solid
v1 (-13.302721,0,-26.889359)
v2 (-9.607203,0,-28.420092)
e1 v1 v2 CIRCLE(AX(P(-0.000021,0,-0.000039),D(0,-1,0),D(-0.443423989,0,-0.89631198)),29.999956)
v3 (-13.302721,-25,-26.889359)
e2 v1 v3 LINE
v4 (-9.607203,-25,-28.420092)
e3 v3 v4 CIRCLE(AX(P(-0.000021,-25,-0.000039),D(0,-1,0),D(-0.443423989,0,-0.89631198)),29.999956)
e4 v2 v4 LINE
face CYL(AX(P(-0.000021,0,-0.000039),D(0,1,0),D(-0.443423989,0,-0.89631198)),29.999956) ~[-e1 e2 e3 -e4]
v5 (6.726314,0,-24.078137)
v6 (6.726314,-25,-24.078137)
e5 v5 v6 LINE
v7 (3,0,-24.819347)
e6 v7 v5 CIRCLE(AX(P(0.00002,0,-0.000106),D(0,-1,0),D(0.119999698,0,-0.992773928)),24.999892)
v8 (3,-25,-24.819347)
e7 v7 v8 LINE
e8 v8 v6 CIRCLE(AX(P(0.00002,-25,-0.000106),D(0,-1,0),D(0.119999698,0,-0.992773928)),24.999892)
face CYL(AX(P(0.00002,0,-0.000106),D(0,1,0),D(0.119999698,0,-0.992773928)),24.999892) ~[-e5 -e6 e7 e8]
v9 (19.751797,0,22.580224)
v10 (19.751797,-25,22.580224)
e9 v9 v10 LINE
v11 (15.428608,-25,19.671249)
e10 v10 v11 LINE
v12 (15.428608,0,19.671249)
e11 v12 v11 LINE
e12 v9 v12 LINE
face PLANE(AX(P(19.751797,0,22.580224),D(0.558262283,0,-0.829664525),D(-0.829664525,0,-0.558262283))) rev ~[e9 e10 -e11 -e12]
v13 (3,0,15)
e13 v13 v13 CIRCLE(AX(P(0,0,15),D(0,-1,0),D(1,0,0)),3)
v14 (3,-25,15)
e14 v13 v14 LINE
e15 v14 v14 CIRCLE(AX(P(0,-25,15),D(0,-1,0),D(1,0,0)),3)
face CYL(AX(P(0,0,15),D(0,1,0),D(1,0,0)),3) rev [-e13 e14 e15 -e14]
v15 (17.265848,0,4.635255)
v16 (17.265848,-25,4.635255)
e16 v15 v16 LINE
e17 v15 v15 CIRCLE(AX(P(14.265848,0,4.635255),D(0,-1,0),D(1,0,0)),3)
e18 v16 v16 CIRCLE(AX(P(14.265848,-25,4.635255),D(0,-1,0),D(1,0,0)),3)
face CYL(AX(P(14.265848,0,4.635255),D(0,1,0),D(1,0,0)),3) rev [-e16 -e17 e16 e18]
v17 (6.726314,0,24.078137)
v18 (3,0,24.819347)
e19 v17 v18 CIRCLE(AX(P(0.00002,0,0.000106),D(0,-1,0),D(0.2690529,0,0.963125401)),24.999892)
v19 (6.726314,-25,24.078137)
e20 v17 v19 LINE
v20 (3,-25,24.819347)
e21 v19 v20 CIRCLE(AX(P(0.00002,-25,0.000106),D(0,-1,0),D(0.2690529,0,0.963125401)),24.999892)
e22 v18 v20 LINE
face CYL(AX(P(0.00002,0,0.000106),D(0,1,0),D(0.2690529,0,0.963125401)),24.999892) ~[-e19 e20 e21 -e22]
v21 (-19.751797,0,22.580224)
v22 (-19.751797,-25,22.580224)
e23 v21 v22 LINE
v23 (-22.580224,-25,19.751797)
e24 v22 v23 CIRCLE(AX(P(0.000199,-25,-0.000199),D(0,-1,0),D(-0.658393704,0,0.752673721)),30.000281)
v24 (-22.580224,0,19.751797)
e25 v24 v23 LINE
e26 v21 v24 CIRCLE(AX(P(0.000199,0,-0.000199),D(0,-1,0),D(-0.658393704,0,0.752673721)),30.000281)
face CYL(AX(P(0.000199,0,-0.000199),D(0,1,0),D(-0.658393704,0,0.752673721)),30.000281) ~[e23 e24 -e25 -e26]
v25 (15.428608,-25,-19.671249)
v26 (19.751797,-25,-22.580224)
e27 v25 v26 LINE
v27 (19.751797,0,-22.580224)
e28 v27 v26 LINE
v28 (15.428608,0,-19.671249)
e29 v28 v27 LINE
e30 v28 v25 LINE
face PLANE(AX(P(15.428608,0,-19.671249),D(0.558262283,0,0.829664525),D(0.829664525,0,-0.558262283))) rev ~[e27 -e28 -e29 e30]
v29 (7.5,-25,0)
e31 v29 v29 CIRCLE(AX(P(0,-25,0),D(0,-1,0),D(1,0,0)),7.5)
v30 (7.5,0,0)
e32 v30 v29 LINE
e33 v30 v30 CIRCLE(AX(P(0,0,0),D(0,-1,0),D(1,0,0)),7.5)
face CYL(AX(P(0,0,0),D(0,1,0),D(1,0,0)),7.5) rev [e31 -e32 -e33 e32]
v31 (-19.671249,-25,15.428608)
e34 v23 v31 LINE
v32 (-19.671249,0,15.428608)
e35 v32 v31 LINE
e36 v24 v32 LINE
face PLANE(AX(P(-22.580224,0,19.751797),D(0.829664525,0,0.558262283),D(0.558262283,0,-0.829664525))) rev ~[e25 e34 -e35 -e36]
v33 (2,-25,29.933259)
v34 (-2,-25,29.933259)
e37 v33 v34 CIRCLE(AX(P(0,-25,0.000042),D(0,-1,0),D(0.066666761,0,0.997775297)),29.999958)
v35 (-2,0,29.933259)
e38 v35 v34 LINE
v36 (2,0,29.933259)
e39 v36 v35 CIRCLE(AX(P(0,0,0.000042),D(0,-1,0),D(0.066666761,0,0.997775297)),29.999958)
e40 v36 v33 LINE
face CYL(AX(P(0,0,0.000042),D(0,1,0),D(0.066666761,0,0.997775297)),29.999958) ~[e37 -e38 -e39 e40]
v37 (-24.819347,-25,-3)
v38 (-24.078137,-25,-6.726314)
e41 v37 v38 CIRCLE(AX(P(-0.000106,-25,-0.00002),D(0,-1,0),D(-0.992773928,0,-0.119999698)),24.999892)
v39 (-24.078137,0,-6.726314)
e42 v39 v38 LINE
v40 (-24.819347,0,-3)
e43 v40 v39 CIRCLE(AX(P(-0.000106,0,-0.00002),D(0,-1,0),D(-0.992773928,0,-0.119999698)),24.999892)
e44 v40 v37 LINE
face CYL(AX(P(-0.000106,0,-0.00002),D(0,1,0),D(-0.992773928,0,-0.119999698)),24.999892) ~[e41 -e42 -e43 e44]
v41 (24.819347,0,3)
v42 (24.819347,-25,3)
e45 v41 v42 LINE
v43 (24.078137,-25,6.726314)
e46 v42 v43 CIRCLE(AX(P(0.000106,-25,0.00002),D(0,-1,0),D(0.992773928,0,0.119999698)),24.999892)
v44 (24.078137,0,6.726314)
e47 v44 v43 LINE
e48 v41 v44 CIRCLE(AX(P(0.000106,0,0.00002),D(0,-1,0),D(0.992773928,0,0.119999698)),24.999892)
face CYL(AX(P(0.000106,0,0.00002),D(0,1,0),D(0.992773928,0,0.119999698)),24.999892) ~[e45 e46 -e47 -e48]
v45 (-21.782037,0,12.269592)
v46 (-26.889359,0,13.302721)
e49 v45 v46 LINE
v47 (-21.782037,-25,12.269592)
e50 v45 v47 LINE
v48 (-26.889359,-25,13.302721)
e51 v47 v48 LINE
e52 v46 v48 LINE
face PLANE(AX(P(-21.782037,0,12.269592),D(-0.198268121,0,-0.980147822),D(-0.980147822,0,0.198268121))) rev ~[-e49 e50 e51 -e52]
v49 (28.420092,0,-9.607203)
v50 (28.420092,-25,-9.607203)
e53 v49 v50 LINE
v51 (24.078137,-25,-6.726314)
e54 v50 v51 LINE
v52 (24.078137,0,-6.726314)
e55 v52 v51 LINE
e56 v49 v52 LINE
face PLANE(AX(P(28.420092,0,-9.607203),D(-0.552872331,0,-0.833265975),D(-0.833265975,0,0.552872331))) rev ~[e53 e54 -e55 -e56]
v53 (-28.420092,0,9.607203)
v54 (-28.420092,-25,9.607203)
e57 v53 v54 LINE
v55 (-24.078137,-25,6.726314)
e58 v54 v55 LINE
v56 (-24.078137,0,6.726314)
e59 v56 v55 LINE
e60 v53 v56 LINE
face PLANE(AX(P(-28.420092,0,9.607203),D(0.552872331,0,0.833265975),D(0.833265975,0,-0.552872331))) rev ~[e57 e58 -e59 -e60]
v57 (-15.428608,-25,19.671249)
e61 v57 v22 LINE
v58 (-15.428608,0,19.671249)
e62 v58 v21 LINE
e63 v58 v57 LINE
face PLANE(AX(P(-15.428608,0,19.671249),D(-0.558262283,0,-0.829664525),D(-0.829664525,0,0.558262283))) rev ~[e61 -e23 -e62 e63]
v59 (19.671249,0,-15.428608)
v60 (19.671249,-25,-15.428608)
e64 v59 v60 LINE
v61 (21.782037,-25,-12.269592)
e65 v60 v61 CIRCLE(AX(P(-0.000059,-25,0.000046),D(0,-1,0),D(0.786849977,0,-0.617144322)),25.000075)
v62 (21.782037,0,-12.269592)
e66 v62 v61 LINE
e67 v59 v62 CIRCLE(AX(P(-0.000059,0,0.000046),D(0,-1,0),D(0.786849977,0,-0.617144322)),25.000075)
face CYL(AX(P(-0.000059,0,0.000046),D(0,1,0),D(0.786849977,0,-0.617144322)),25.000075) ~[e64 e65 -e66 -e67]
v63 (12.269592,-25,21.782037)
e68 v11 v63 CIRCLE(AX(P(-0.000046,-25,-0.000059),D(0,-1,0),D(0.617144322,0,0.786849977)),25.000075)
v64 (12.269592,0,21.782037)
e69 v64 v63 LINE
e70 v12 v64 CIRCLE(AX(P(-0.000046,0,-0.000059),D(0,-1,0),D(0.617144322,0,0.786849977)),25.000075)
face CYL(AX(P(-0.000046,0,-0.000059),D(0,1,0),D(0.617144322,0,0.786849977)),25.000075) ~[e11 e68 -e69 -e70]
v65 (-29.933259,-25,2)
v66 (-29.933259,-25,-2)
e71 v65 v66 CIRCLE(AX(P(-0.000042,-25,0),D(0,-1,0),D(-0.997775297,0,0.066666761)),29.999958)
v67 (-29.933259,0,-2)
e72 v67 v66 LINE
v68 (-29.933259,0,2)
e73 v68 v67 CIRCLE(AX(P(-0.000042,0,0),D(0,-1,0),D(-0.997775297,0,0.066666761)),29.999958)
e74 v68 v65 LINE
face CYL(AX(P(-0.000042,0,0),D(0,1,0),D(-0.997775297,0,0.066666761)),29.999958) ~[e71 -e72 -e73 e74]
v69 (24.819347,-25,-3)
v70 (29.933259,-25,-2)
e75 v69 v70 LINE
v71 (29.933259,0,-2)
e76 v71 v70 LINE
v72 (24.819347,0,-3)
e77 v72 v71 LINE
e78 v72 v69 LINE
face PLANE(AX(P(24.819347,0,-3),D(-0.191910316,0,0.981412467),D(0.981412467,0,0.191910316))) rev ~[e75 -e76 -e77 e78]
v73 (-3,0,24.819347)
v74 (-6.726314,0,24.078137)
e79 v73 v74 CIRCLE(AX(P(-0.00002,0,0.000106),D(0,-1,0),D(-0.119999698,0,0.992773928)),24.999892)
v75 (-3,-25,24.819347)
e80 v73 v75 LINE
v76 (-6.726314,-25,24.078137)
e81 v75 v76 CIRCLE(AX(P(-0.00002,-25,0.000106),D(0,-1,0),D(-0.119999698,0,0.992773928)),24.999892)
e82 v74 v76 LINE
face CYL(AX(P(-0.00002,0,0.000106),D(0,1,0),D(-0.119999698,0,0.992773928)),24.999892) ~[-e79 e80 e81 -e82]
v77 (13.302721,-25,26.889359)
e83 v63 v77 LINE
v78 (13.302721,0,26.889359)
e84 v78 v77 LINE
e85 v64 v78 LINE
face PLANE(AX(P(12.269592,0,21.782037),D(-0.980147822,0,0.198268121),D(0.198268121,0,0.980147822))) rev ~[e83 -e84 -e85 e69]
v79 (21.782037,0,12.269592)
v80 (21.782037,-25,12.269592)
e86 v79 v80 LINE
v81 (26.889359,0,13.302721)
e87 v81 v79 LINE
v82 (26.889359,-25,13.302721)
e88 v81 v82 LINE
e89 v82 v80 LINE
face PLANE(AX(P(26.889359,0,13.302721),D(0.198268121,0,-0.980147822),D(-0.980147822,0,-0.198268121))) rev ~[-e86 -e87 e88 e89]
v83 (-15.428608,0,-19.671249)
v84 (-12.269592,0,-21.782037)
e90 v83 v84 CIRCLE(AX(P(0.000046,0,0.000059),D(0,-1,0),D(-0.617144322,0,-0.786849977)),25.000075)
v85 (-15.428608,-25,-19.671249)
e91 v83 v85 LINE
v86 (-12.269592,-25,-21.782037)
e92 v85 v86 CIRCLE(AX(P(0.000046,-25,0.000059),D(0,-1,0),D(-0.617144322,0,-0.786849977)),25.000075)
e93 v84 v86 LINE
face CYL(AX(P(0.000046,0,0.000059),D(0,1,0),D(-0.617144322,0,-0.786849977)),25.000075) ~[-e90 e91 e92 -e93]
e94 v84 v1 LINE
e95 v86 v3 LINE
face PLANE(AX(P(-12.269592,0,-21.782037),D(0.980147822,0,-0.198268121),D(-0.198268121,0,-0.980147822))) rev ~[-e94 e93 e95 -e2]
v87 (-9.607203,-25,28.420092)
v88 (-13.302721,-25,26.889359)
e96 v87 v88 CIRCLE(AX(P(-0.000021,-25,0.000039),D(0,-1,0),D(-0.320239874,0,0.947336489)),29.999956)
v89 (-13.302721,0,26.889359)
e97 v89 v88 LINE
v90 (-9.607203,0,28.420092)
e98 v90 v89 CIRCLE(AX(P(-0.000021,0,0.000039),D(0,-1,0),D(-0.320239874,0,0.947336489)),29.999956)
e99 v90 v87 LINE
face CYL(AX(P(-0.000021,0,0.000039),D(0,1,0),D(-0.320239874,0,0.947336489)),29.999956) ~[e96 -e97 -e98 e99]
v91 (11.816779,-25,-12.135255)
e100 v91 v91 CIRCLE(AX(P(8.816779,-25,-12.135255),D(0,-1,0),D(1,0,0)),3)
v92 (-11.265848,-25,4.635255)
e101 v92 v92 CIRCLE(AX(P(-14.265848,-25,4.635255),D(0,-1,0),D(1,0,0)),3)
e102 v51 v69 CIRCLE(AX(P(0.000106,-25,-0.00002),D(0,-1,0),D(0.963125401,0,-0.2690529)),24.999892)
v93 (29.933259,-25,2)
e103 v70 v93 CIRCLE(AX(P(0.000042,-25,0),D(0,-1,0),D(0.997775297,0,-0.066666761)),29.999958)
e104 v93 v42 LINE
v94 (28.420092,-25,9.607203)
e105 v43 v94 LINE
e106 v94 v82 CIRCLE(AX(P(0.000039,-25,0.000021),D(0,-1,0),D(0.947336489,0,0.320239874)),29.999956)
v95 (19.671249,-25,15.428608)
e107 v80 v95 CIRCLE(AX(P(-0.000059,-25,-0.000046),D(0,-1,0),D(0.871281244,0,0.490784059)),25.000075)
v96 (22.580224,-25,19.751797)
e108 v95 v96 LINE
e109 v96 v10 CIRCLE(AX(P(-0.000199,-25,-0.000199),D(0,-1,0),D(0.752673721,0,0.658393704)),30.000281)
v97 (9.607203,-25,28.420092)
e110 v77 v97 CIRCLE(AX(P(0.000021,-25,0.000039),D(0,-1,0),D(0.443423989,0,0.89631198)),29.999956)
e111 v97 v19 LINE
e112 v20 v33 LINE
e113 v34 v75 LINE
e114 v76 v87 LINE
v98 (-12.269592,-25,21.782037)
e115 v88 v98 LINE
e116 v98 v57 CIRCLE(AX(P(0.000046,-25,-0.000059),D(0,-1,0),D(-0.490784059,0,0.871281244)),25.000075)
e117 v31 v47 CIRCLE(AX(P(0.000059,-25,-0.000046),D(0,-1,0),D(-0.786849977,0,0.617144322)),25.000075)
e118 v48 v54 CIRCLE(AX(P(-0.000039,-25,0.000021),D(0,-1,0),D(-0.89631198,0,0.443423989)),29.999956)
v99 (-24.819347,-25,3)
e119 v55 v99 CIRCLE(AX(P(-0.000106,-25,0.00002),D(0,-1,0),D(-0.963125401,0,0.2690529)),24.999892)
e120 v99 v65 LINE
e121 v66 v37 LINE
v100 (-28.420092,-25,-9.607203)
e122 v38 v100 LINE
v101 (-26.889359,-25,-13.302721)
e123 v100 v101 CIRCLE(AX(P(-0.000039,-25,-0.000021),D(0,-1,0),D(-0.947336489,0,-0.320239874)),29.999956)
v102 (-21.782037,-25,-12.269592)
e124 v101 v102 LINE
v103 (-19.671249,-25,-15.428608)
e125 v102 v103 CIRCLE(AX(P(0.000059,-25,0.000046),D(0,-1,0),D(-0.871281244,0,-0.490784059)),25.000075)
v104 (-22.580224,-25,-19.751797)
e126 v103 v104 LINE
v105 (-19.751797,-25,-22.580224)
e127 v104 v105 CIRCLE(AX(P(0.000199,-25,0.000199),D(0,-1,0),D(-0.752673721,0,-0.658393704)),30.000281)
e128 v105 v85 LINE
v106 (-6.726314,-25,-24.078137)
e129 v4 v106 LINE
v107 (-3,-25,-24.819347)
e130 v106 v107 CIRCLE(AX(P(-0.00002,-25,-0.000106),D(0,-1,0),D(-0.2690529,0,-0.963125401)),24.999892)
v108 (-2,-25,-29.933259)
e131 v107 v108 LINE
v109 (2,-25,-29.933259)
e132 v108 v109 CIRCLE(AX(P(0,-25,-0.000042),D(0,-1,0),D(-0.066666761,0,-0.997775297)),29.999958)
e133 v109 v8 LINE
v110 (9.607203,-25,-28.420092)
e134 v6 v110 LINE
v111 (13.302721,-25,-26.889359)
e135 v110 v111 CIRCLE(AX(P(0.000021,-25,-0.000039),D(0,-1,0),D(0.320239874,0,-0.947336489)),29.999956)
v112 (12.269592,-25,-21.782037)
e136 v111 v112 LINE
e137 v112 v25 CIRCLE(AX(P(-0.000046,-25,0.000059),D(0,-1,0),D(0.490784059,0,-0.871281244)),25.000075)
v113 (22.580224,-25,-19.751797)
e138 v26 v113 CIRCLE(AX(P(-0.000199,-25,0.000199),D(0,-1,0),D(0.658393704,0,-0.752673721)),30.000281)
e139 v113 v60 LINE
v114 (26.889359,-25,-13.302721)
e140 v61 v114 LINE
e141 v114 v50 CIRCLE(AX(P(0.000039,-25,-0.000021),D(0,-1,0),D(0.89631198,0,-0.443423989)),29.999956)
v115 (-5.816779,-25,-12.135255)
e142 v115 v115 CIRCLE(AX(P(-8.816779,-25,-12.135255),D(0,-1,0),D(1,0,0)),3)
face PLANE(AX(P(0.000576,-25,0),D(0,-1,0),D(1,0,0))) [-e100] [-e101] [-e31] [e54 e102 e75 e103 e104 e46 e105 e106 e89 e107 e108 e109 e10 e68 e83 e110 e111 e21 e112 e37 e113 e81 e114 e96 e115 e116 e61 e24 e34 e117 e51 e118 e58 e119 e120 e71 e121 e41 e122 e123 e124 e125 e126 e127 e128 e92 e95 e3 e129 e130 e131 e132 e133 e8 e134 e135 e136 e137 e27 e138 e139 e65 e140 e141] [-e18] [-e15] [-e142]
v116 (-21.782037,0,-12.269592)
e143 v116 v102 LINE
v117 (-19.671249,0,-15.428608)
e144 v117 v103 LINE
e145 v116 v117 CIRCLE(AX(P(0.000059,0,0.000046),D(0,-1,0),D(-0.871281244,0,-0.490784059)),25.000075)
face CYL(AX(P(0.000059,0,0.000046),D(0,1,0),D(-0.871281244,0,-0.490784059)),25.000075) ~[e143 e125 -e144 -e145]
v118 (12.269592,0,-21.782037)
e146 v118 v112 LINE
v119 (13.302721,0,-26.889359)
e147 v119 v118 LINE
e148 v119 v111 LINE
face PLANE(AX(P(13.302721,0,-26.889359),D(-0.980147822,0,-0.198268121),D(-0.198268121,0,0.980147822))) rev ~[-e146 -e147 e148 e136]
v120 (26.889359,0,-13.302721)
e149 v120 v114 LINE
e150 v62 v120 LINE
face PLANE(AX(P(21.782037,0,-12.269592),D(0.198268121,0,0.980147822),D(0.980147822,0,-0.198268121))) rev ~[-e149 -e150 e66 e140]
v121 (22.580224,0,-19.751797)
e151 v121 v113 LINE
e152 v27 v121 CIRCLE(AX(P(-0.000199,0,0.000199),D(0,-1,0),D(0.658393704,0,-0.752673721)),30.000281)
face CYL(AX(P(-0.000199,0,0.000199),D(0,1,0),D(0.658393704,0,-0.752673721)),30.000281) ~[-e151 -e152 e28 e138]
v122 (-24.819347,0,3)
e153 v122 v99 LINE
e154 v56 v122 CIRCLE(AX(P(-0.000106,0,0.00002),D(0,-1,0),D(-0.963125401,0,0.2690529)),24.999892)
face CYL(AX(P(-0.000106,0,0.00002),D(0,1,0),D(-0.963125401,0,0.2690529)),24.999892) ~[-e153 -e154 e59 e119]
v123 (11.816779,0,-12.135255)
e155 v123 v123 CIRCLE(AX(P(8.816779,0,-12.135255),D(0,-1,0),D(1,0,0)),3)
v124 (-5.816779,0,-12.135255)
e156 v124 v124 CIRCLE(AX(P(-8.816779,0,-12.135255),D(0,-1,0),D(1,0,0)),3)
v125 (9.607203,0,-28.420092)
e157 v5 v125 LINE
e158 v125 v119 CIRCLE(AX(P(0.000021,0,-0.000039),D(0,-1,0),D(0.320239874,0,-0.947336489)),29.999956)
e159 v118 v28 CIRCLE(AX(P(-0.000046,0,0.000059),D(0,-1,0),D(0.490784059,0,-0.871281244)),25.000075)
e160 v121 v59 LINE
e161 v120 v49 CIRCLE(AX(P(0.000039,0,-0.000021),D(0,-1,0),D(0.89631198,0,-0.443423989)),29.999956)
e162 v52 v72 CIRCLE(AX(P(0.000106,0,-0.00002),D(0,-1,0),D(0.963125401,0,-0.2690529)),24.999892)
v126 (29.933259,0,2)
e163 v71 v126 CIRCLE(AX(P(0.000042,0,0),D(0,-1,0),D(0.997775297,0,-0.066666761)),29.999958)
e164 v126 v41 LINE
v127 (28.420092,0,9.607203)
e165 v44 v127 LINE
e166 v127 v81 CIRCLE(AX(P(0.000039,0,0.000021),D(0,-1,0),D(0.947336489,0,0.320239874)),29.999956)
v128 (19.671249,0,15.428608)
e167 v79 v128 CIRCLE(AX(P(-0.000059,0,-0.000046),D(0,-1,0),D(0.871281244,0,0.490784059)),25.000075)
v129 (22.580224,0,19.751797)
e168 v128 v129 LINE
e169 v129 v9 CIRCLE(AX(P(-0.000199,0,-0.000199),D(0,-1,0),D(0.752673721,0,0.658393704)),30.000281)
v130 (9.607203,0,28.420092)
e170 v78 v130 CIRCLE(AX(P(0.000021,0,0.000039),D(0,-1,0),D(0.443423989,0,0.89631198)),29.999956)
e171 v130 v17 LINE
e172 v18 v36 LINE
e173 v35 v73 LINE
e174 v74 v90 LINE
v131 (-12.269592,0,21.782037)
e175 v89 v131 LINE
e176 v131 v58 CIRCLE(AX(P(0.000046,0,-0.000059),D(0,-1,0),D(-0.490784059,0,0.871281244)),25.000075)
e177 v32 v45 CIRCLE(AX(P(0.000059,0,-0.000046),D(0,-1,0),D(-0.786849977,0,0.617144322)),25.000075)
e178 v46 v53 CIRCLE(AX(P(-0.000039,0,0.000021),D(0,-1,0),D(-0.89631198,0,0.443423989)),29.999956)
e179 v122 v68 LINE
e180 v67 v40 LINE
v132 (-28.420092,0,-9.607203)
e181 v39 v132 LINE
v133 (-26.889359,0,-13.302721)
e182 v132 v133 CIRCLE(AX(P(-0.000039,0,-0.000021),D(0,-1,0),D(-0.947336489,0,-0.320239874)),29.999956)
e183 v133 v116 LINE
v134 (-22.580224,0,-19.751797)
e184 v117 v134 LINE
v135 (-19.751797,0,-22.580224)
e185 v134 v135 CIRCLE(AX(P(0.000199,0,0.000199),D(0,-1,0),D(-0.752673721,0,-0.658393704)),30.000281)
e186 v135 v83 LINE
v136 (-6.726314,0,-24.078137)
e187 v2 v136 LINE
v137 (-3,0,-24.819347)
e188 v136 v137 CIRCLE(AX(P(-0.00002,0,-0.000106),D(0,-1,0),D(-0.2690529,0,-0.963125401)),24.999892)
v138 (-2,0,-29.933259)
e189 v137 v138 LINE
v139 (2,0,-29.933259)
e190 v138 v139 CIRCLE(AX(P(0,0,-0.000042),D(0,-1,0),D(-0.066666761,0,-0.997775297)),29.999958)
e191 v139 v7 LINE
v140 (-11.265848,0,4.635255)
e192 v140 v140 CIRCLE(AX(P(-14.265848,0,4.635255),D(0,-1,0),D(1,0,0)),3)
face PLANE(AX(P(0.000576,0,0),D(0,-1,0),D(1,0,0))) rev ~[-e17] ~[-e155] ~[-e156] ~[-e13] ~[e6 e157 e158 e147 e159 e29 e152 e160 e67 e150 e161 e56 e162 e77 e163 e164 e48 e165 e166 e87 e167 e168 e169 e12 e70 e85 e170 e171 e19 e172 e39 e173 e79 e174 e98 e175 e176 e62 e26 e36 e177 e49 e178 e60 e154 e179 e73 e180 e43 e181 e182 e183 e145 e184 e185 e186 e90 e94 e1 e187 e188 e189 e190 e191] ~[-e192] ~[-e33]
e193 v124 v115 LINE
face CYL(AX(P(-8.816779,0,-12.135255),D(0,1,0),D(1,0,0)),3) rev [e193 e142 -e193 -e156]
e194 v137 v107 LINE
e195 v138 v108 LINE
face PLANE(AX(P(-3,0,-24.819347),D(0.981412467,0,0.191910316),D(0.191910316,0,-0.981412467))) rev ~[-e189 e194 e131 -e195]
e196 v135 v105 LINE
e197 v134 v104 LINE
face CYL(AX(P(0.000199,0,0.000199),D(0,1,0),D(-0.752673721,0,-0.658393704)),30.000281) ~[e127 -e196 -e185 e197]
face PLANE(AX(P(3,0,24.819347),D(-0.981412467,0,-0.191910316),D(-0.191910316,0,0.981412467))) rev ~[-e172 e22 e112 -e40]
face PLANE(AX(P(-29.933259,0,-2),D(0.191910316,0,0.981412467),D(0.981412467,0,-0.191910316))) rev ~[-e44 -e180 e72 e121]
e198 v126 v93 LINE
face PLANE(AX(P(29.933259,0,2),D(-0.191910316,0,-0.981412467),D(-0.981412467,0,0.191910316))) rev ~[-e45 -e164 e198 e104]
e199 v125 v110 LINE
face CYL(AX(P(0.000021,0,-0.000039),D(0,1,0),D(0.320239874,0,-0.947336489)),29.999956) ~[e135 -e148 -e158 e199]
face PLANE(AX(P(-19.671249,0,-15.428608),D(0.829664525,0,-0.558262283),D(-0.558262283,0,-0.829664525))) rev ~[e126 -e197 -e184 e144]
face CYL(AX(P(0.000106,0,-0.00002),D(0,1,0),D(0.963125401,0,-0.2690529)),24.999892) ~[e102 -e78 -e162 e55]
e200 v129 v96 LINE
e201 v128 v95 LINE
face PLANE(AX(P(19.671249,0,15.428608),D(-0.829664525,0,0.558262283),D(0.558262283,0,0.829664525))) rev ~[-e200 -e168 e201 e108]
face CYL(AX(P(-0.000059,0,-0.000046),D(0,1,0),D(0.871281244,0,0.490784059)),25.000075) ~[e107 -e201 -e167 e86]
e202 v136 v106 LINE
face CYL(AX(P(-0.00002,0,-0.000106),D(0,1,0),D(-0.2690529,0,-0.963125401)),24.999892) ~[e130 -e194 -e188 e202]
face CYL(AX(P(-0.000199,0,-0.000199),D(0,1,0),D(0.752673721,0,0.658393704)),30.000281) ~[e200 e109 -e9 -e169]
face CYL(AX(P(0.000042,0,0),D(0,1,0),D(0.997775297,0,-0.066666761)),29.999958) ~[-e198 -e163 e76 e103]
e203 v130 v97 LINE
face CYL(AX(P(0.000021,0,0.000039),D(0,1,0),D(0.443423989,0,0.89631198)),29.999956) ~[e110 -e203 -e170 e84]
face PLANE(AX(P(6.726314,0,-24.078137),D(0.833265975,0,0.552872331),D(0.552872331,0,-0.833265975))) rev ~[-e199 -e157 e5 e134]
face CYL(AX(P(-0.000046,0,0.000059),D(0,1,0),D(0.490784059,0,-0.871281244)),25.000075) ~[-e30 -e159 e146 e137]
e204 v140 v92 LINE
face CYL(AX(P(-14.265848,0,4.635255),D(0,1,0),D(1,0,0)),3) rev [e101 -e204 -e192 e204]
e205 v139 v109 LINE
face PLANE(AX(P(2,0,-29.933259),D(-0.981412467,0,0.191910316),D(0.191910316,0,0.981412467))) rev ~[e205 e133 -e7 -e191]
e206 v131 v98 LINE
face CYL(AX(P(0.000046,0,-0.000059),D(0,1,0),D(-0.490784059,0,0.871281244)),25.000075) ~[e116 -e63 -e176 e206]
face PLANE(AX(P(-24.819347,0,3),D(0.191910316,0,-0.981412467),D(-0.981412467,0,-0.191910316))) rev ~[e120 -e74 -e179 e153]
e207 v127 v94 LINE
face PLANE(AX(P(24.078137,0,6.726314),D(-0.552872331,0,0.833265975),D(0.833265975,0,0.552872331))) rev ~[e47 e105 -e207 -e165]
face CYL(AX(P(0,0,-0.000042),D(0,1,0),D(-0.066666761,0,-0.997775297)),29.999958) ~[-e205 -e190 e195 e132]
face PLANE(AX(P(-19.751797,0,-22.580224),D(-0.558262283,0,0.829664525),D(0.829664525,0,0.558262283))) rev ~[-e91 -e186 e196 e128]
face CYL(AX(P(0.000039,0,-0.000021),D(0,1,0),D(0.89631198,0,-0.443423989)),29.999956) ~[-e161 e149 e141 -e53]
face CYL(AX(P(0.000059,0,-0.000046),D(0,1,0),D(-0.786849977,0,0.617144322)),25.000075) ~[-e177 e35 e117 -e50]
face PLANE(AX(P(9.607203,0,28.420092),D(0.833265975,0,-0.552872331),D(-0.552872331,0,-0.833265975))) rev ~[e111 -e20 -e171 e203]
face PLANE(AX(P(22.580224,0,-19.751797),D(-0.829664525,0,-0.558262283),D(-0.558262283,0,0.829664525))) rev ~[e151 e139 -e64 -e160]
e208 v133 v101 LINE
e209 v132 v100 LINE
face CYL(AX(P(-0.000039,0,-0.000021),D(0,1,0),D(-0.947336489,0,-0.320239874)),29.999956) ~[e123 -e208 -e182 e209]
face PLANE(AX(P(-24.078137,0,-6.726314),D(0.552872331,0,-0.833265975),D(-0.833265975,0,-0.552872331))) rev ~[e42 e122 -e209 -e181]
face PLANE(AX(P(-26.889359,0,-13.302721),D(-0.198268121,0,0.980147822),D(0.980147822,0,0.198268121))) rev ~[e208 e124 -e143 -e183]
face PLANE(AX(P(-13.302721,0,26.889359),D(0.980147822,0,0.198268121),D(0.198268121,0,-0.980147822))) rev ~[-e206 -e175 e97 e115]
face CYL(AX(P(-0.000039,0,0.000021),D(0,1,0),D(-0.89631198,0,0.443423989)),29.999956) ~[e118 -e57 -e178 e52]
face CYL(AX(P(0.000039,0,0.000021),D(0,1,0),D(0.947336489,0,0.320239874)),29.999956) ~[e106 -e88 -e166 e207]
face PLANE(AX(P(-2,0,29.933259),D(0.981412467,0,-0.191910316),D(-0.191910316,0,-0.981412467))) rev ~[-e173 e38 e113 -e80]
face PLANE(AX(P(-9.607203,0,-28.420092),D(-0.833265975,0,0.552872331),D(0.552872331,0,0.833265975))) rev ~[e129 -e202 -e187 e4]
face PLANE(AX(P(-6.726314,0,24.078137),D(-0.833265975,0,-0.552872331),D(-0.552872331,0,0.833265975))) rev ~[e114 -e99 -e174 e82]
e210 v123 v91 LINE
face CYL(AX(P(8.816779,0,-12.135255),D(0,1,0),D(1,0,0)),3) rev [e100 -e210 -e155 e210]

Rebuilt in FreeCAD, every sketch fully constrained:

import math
import FreeCAD as App
import Part
import Sketcher
from FreeCAD import Vector

doc = App.newDocument("Part")
body = doc.addObject("PartDesign::Body", "Body")

sketch1 = body.newObject("Sketcher::SketchObject", "Sketch")
sketch1.AttachmentSupport = (doc.getObject("XZ_Plane"), [""])
sketch1.MapMode = "FlatFace"
sketch1.addGeometry([
    Part.ArcOfCircle(Part.Circle(Vector(-0.000059, 0.000046, 0), Vector(0, 0, 1), 25.000075), math.radians(-38.107896), math.radians(-29.392129)),
    Part.LineSegment(Vector(21.782037, -12.269592, 0), Vector(26.889359, -13.302721, 0)),
    Part.ArcOfCircle(Part.Circle(Vector(0.000039, -0.000021, 0), Vector(0, 0, 1), 29.999956), math.radians(-26.32255), math.radians(-18.677432)),
    Part.LineSegment(Vector(28.420092, -9.607203, 0), Vector(24.078137, -6.726314, 0)),
    Part.ArcOfCircle(Part.Circle(Vector(0.000106, -0.00002, 0), Vector(0, 0, 1), 24.999892), math.radians(-15.607917), math.radians(-6.892085)),
    Part.LineSegment(Vector(24.819347, -3, 0), Vector(29.933259, -2, 0)),
    Part.ArcOfCircle(Part.Circle(Vector(0.000042, 0, 0), Vector(0, 0, 1), 29.999958), math.radians(-3.822559), math.radians(3.822559)),
    Part.LineSegment(Vector(29.933259, 2, 0), Vector(24.819347, 3, 0)),
    Part.ArcOfCircle(Part.Circle(Vector(0.000106, 0.00002, 0), Vector(0, 0, 1), 24.999892), math.radians(6.892085), math.radians(15.607917)),
    Part.LineSegment(Vector(24.078137, 6.726314, 0), Vector(28.420092, 9.607203, 0)),
    Part.ArcOfCircle(Part.Circle(Vector(0.000039, 0.000021, 0), Vector(0, 0, 1), 29.999956), math.radians(18.677432), math.radians(26.32255)),
    Part.LineSegment(Vector(26.889359, 13.302721, 0), Vector(21.782037, 12.269592, 0)),
    Part.ArcOfCircle(Part.Circle(Vector(-0.000059, -0.000046, 0), Vector(0, 0, 1), 25.000075), math.radians(29.392129), math.radians(38.107896)),
    Part.LineSegment(Vector(19.671249, 15.428608, 0), Vector(22.580224, 19.751797, 0)),
    Part.ArcOfCircle(Part.Circle(Vector(-0.000199, -0.000199, 0), Vector(0, 0, 1), 30.000281), math.radians(41.177482), math.radians(48.822518)),
    Part.LineSegment(Vector(19.751797, 22.580224, 0), Vector(15.428608, 19.671249, 0)),
    Part.ArcOfCircle(Part.Circle(Vector(-0.000046, -0.000059, 0), Vector(0, 0, 1), 25.000075), math.radians(51.892104), math.radians(60.607871)),
    Part.LineSegment(Vector(12.269592, 21.782037, 0), Vector(13.302721, 26.889359, 0)),
    Part.ArcOfCircle(Part.Circle(Vector(0.000021, 0.000039, 0), Vector(0, 0, 1), 29.999956), math.radians(63.67745), math.radians(71.322568)),
    Part.LineSegment(Vector(9.607203, 28.420092, 0), Vector(6.726314, 24.078137, 0)),
    Part.ArcOfCircle(Part.Circle(Vector(0.00002, 0.000106, 0), Vector(0, 0, 1), 24.999892), math.radians(74.392083), math.radians(83.107915)),
    Part.LineSegment(Vector(3, 24.819347, 0), Vector(2, 29.933259, 0)),
    Part.ArcOfCircle(Part.Circle(Vector(0, 0.000042, 0), Vector(0, 0, 1), 29.999958), math.radians(86.177441), math.radians(93.822559)),
    Part.LineSegment(Vector(-2, 29.933259, 0), Vector(-3, 24.819347, 0)),
    Part.ArcOfCircle(Part.Circle(Vector(-0.00002, 0.000106, 0), Vector(0, 0, 1), 24.999892), math.radians(96.892085), math.radians(105.607917)),
    Part.LineSegment(Vector(-6.726314, 24.078137, 0), Vector(-9.607203, 28.420092, 0)),
    Part.ArcOfCircle(Part.Circle(Vector(-0.000021, 0.000039, 0), Vector(0, 0, 1), 29.999956), math.radians(108.677432), math.radians(116.32255)),
    Part.LineSegment(Vector(-13.302721, 26.889359, 0), Vector(-12.269592, 21.782037, 0)),
    Part.ArcOfCircle(Part.Circle(Vector(0.000046, -0.000059, 0), Vector(0, 0, 1), 25.000075), math.radians(119.392129), math.radians(128.107896)),
    Part.LineSegment(Vector(-15.428608, 19.671249, 0), Vector(-19.751797, 22.580224, 0)),
    Part.ArcOfCircle(Part.Circle(Vector(0.000199, -0.000199, 0), Vector(0, 0, 1), 30.000281), math.radians(131.177482), math.radians(138.822518)),
    Part.LineSegment(Vector(-22.580224, 19.751797, 0), Vector(-19.671249, 15.428608, 0)),
    Part.ArcOfCircle(Part.Circle(Vector(0.000059, -0.000046, 0), Vector(0, 0, 1), 25.000075), math.radians(141.892104), math.radians(150.607871)),
    Part.LineSegment(Vector(-21.782037, 12.269592, 0), Vector(-26.889359, 13.302721, 0)),
    Part.ArcOfCircle(Part.Circle(Vector(-0.000039, 0.000021, 0), Vector(0, 0, 1), 29.999956), math.radians(153.67745), math.radians(161.322568)),
    Part.LineSegment(Vector(-28.420092, 9.607203, 0), Vector(-24.078137, 6.726314, 0)),
    Part.ArcOfCircle(Part.Circle(Vector(-0.000106, 0.00002, 0), Vector(0, 0, 1), 24.999892), math.radians(164.392083), math.radians(173.107915)),
    Part.LineSegment(Vector(-24.819347, 3, 0), Vector(-29.933259, 2, 0)),
    Part.ArcOfCircle(Part.Circle(Vector(-0.000042, 0, 0), Vector(0, 0, 1), 29.999958), math.radians(176.177441), math.radians(183.822559)),
    Part.LineSegment(Vector(-29.933259, -2, 0), Vector(-24.819347, -3, 0)),
    Part.ArcOfCircle(Part.Circle(Vector(-0.000106, -0.00002, 0), Vector(0, 0, 1), 24.999892), math.radians(-173.107915), math.radians(-164.392083)),
    Part.LineSegment(Vector(-24.078137, -6.726314, 0), Vector(-28.420092, -9.607203, 0)),
    Part.ArcOfCircle(Part.Circle(Vector(-0.000039, -0.000021, 0), Vector(0, 0, 1), 29.999956), math.radians(-161.322568), math.radians(-153.67745)),
    Part.LineSegment(Vector(-26.889359, -13.302721, 0), Vector(-21.782037, -12.269592, 0)),
    Part.ArcOfCircle(Part.Circle(Vector(0.000059, 0.000046, 0), Vector(0, 0, 1), 25.000075), math.radians(-150.607871), math.radians(-141.892104)),
    Part.LineSegment(Vector(-19.671249, -15.428608, 0), Vector(-22.580224, -19.751797, 0)),
    Part.ArcOfCircle(Part.Circle(Vector(0.000199, 0.000199, 0), Vector(0, 0, 1), 30.000281), math.radians(-138.822518), math.radians(-131.177482)),
    Part.LineSegment(Vector(-19.751797, -22.580224, 0), Vector(-15.428608, -19.671249, 0)),
    Part.ArcOfCircle(Part.Circle(Vector(0.000046, 0.000059, 0), Vector(0, 0, 1), 25.000075), math.radians(-128.107896), math.radians(-119.392129)),
    Part.LineSegment(Vector(-12.269592, -21.782037, 0), Vector(-13.302721, -26.889359, 0)),
    Part.ArcOfCircle(Part.Circle(Vector(-0.000021, -0.000039, 0), Vector(0, 0, 1), 29.999956), math.radians(-116.32255), math.radians(-108.677432)),
    Part.LineSegment(Vector(-9.607203, -28.420092, 0), Vector(-6.726314, -24.078137, 0)),
    Part.ArcOfCircle(Part.Circle(Vector(-0.00002, -0.000106, 0), Vector(0, 0, 1), 24.999892), math.radians(-105.607917), math.radians(-96.892085)),
    Part.LineSegment(Vector(-3, -24.819347, 0), Vector(-2, -29.933259, 0)),
    Part.ArcOfCircle(Part.Circle(Vector(0, -0.000042, 0), Vector(0, 0, 1), 29.999958), math.radians(-93.822559), math.radians(-86.177441)),
    Part.LineSegment(Vector(2, -29.933259, 0), Vector(3, -24.819347, 0)),
    Part.ArcOfCircle(Part.Circle(Vector(0.00002, -0.000106, 0), Vector(0, 0, 1), 24.999892), math.radians(-83.107915), math.radians(-74.392083)),
    Part.LineSegment(Vector(6.726314, -24.078137, 0), Vector(9.607203, -28.420092, 0)),
    Part.ArcOfCircle(Part.Circle(Vector(0.000021, -0.000039, 0), Vector(0, 0, 1), 29.999956), math.radians(-71.322568), math.radians(-63.67745)),
    Part.LineSegment(Vector(13.302721, -26.889359, 0), Vector(12.269592, -21.782037, 0)),
    Part.ArcOfCircle(Part.Circle(Vector(-0.000046, 0.000059, 0), Vector(0, 0, 1), 25.000075), math.radians(-60.607871), math.radians(-51.892104)),
    Part.LineSegment(Vector(15.428608, -19.671249, 0), Vector(19.751797, -22.580224, 0)),
    Part.ArcOfCircle(Part.Circle(Vector(-0.000199, 0.000199, 0), Vector(0, 0, 1), 30.000281), math.radians(-48.822518), math.radians(-41.177482)),
    Part.LineSegment(Vector(22.580224, -19.751797, 0), Vector(19.671249, -15.428608, 0)),
    Part.Circle(Vector(-8.816779, -12.135255, 0), Vector(0, 0, 1), 3),
    Part.Circle(Vector(0, 0, 0), Vector(0, 0, 1), 7.5),
    Part.Circle(Vector(8.816779, -12.135255, 0), Vector(0, 0, 1), 3),
    Part.Circle(Vector(-14.265848, 4.635255, 0), Vector(0, 0, 1), 3),
    Part.Circle(Vector(0, 15, 0), Vector(0, 0, 1), 3),
    Part.Circle(Vector(14.265848, 4.635255, 0), Vector(0, 0, 1), 3),
], False)
sketch1.addConstraint([
    Sketcher.Constraint("Coincident", 0, 2, 1, 1),
    Sketcher.Constraint("Coincident", 1, 2, 2, 1),
    Sketcher.Constraint("Coincident", 2, 2, 3, 1),
    Sketcher.Constraint("Coincident", 3, 2, 4, 1),
    Sketcher.Constraint("Coincident", 4, 2, 5, 1),
    Sketcher.Constraint("Coincident", 5, 2, 6, 1),
    Sketcher.Constraint("Coincident", 6, 2, 7, 1),
    Sketcher.Constraint("Coincident", 7, 2, 8, 1),
    Sketcher.Constraint("Coincident", 8, 2, 9, 1),
    Sketcher.Constraint("Coincident", 9, 2, 10, 1),
    Sketcher.Constraint("Coincident", 10, 2, 11, 1),
    Sketcher.Constraint("Coincident", 11, 2, 12, 1),
    Sketcher.Constraint("Coincident", 12, 2, 13, 1),
    Sketcher.Constraint("Coincident", 13, 2, 14, 1),
    Sketcher.Constraint("Coincident", 14, 2, 15, 1),
    Sketcher.Constraint("Coincident", 15, 2, 16, 1),
    Sketcher.Constraint("Coincident", 16, 2, 17, 1),
    Sketcher.Constraint("Coincident", 17, 2, 18, 1),
    Sketcher.Constraint("Coincident", 18, 2, 19, 1),
    Sketcher.Constraint("Coincident", 19, 2, 20, 1),
    Sketcher.Constraint("Coincident", 20, 2, 21, 1),
    Sketcher.Constraint("Coincident", 21, 2, 22, 1),
    Sketcher.Constraint("Coincident", 22, 2, 23, 1),
    Sketcher.Constraint("Coincident", 23, 2, 24, 1),
    Sketcher.Constraint("Coincident", 24, 2, 25, 1),
    Sketcher.Constraint("Coincident", 25, 2, 26, 1),
    Sketcher.Constraint("Coincident", 26, 2, 27, 1),
    Sketcher.Constraint("Coincident", 27, 2, 28, 1),
    Sketcher.Constraint("Coincident", 28, 2, 29, 1),
    Sketcher.Constraint("Coincident", 29, 2, 30, 1),
    Sketcher.Constraint("Coincident", 30, 2, 31, 1),
    Sketcher.Constraint("Coincident", 31, 2, 32, 1),
    Sketcher.Constraint("Coincident", 32, 2, 33, 1),
    Sketcher.Constraint("Coincident", 33, 2, 34, 1),
    Sketcher.Constraint("Coincident", 34, 2, 35, 1),
    Sketcher.Constraint("Coincident", 35, 2, 36, 1),
    Sketcher.Constraint("Coincident", 36, 2, 37, 1),
    Sketcher.Constraint("Coincident", 37, 2, 38, 1),
    Sketcher.Constraint("Coincident", 38, 2, 39, 1),
    Sketcher.Constraint("Coincident", 39, 2, 40, 1),
    Sketcher.Constraint("Coincident", 40, 2, 41, 1),
    Sketcher.Constraint("Coincident", 41, 2, 42, 1),
    Sketcher.Constraint("Coincident", 42, 2, 43, 1),
    Sketcher.Constraint("Coincident", 43, 2, 44, 1),
    Sketcher.Constraint("Coincident", 44, 2, 45, 1),
    Sketcher.Constraint("Coincident", 45, 2, 46, 1),
    Sketcher.Constraint("Coincident", 46, 2, 47, 1),
    Sketcher.Constraint("Coincident", 47, 2, 48, 1),
    Sketcher.Constraint("Coincident", 48, 2, 49, 1),
    Sketcher.Constraint("Coincident", 49, 2, 50, 1),
    Sketcher.Constraint("Coincident", 50, 2, 51, 1),
    Sketcher.Constraint("Coincident", 51, 2, 52, 1),
    Sketcher.Constraint("Coincident", 52, 2, 53, 1),
    Sketcher.Constraint("Coincident", 53, 2, 54, 1),
    Sketcher.Constraint("Coincident", 54, 2, 55, 1),
    Sketcher.Constraint("Coincident", 55, 2, 56, 1),
    Sketcher.Constraint("Coincident", 56, 2, 57, 1),
    Sketcher.Constraint("Coincident", 57, 2, 58, 1),
    Sketcher.Constraint("Coincident", 58, 2, 59, 1),
    Sketcher.Constraint("Coincident", 59, 2, 60, 1),
    Sketcher.Constraint("Coincident", 60, 2, 61, 1),
    Sketcher.Constraint("Coincident", 61, 2, 62, 1),
    Sketcher.Constraint("Coincident", 62, 2, 63, 1),
    Sketcher.Constraint("Coincident", 63, 2, 0, 1),
    Sketcher.Constraint("Coincident", 65, 3, -1, 1),
    Sketcher.Constraint("Equal", 4, 8),
    Sketcher.Constraint("Equal", 2, 10),
    Sketcher.Constraint("Equal", 0, 12),
    Sketcher.Constraint("Equal", 12, 16),
    Sketcher.Constraint("Equal", 10, 18),
    Sketcher.Constraint("Equal", 8, 20),
    Sketcher.Constraint("Equal", 6, 22),
    Sketcher.Constraint("Equal", 20, 24),
    Sketcher.Constraint("Equal", 18, 26),
    Sketcher.Constraint("Equal", 16, 28),
    Sketcher.Constraint("Equal", 14, 30),
    Sketcher.Constraint("Equal", 28, 32),
    Sketcher.Constraint("Equal", 26, 34),
    Sketcher.Constraint("Equal", 24, 36),
    Sketcher.Constraint("Equal", 22, 38),
    Sketcher.Constraint("Equal", 36, 40),
    Sketcher.Constraint("Equal", 34, 42),
    Sketcher.Constraint("Equal", 32, 44),
    Sketcher.Constraint("Equal", 30, 46),
    Sketcher.Constraint("Equal", 44, 48),
    Sketcher.Constraint("Equal", 42, 50),
    Sketcher.Constraint("Equal", 40, 52),
    Sketcher.Constraint("Equal", 38, 54),
    Sketcher.Constraint("Equal", 52, 56),
    Sketcher.Constraint("Equal", 50, 58),
    Sketcher.Constraint("Equal", 48, 60),
    Sketcher.Constraint("Equal", 46, 62),
    Sketcher.Constraint("Equal", 64, 66),
    Sketcher.Constraint("Equal", 66, 67),
    Sketcher.Constraint("Equal", 67, 68),
    Sketcher.Constraint("Equal", 68, 69),
    Sketcher.Constraint("Symmetric", 0, 3, 32, 3, -1, 1),
    Sketcher.Constraint("Symmetric", 2, 3, 34, 3, -1, 1),
    Sketcher.Constraint("Symmetric", 4, 3, 36, 3, -1, 1),
    Sketcher.Constraint("Symmetric", 6, 3, 38, 3, -1, 1),
    Sketcher.Constraint("Symmetric", 8, 3, 40, 3, -1, 1),
    Sketcher.Constraint("Symmetric", 10, 3, 42, 3, -1, 1),
    Sketcher.Constraint("Symmetric", 12, 3, 44, 3, -1, 1),
    Sketcher.Constraint("Symmetric", 14, 3, 46, 3, -1, 1),
    Sketcher.Constraint("Symmetric", 16, 3, 48, 3, -1, 1),
    Sketcher.Constraint("Symmetric", 18, 3, 50, 3, -1, 1),
    Sketcher.Constraint("Symmetric", 20, 3, 52, 3, -1, 1),
    Sketcher.Constraint("Symmetric", 22, 3, 54, 3, -1, 1),
    Sketcher.Constraint("Symmetric", 24, 3, 56, 3, -1, 1),
    Sketcher.Constraint("Symmetric", 26, 3, 58, 3, -1, 1),
    Sketcher.Constraint("Symmetric", 28, 3, 60, 3, -1, 1),
    Sketcher.Constraint("Symmetric", 30, 3, 62, 3, -1, 1),
    Sketcher.Constraint("Symmetric", 20, 3, 24, 3, -2),
    Sketcher.Constraint("Symmetric", 18, 3, 26, 3, -2),
    Sketcher.Constraint("Symmetric", 16, 3, 28, 3, -2),
    Sketcher.Constraint("Symmetric", 14, 3, 30, 3, -2),
    Sketcher.Constraint("Symmetric", 12, 3, 32, 3, -2),
    Sketcher.Constraint("Symmetric", 10, 3, 34, 3, -2),
    Sketcher.Constraint("Symmetric", 8, 3, 36, 3, -2),
    Sketcher.Constraint("Symmetric", 64, 3, 66, 3, -2),
    Sketcher.Constraint("Symmetric", 67, 3, 69, 3, -2),
    Sketcher.Constraint("Symmetric", 21, 2, 22, 2, -2),
    Sketcher.Constraint("Symmetric", 6, 2, 37, 2, -2),
    Sketcher.Constraint("PointOnObject", 68, 3, -2),
    Sketcher.Constraint("Perpendicular", 1, 17),
    Sketcher.Constraint("Perpendicular", 3, 19),
    Sketcher.Constraint("Perpendicular", 5, 21),
    Sketcher.Constraint("Perpendicular", 7, 23),
    Sketcher.Constraint("Perpendicular", 9, 25),
    Sketcher.Constraint("Perpendicular", 11, 27),
    Sketcher.Constraint("Perpendicular", 13, 29),
    Sketcher.Constraint("Perpendicular", 15, 31),
    Sketcher.Constraint("Perpendicular", 17, 33),
    Sketcher.Constraint("Perpendicular", 19, 35),
    Sketcher.Constraint("Perpendicular", 21, 37),
    Sketcher.Constraint("Perpendicular", 23, 39),
    Sketcher.Constraint("Perpendicular", 25, 41),
    Sketcher.Constraint("Perpendicular", 27, 43),
    Sketcher.Constraint("Perpendicular", 29, 45),
    Sketcher.Constraint("Perpendicular", 31, 47),
    Sketcher.Constraint("Perpendicular", 33, 49),
    Sketcher.Constraint("Perpendicular", 35, 51),
    Sketcher.Constraint("Perpendicular", 37, 53),
    Sketcher.Constraint("Perpendicular", 39, 55),
    Sketcher.Constraint("Perpendicular", 41, 57),
    Sketcher.Constraint("Perpendicular", 43, 59),
    Sketcher.Constraint("Perpendicular", 45, 61),
    Sketcher.Constraint("Perpendicular", 47, 63),
    Sketcher.Constraint("Horizontal", 2, 3, 4, 3),
    Sketcher.Constraint("Horizontal", 20, 2, 23, 2),
    Sketcher.Constraint("Horizontal", 19, 2, 24, 2),
    Sketcher.Constraint("Horizontal", 18, 2, 25, 2),
    Sketcher.Constraint("Horizontal", 17, 2, 26, 2),
    Sketcher.Constraint("Horizontal", 16, 2, 27, 2),
    Sketcher.Constraint("Horizontal", 15, 2, 28, 2),
    Sketcher.Constraint("Horizontal", 14, 2, 29, 2),
    Sketcher.Constraint("Horizontal", 13, 2, 30, 2),
    Sketcher.Constraint("Horizontal", 11, 2, 32, 2),
    Sketcher.Constraint("Horizontal", 9, 2, 34, 2),
    Sketcher.Constraint("Horizontal", 5, 2, 38, 2),
    Sketcher.Constraint("Horizontal", 3, 2, 40, 2),
    Sketcher.Constraint("Horizontal", 1, 2, 42, 2),
    Sketcher.Constraint("Horizontal", 53, 2, 54, 2),
    Sketcher.Constraint("Horizontal", 51, 2, 56, 2),
    Sketcher.Constraint("Horizontal", 49, 2, 58, 2),
    Sketcher.Constraint("Horizontal", 47, 2, 60, 2),
    Sketcher.Constraint("Horizontal", 45, 2, 62, 2),
    Sketcher.Constraint("Vertical", 18, 3, 20, 3),
    Sketcher.Constraint("Vertical", 5, 2, 6, 2),
    Sketcher.Constraint("Vertical", 3, 2, 8, 2),
    Sketcher.Constraint("Vertical", 1, 2, 10, 2),
    Sketcher.Constraint("Vertical", 31, 2, 44, 2),
    Sketcher.Constraint("Vertical", 29, 2, 46, 2),
    Sketcher.Constraint("Vertical", 27, 2, 48, 2),
    Sketcher.Constraint("Vertical", 25, 2, 50, 2),
    Sketcher.Constraint("Vertical", 23, 2, 52, 2),
    Sketcher.Constraint("Equal", 1, 3),
    Sketcher.Constraint("Equal", 3, 5),
    Sketcher.Constraint("Equal", 11, 13),
    Sketcher.Constraint("Equal", 13, 15),
    Sketcher.Constraint("Equal", 15, 17),
    Sketcher.Constraint("Equal", 17, 19),
    Sketcher.Constraint("Equal", 19, 21),
    Sketcher.Constraint("Diameter", 64, 6.0),
    Sketcher.Constraint("Diameter", 65, 15.0),
    Sketcher.Constraint("DistanceY", -1, 1, 68, 3, 15.0),
    Sketcher.Constraint("DistanceY", 4, 2, -1, 1, 3.0),
    Sketcher.Constraint("DistanceY", 5, 2, -1, 1, 2.0),
    Sketcher.Constraint("DistanceX", -1, 1, 20, 2, 3.0),
    Sketcher.Constraint("Radius", 14, 30.000281),
    Sketcher.Constraint("Radius", 0, 25.000075),
    Sketcher.Constraint("Radius", 2, 29.999956),
    Sketcher.Constraint("Radius", 4, 24.999892),
    Sketcher.Constraint("Radius", 6, 29.999958),
    Sketcher.Constraint("DistanceX", 14, 3, -1, 1, 0.000199),
    Sketcher.Constraint("DistanceY", 14, 3, -1, 1, 0.000199),
    Sketcher.Constraint("DistanceX", 64, 3, -1, 1, 8.816779),
    Sketcher.Constraint("DistanceY", 0, 2, -1, 1, 12.269592),
    Sketcher.Constraint("DistanceX", -1, 1, 1, 2, 26.889359),
    Sketcher.Constraint("DistanceY", 1, 2, -1, 1, 13.302721),
    Sketcher.Constraint("DistanceX", -1, 1, 2, 2, 28.420092),
    Sketcher.Constraint("DistanceX", -1, 1, 5, 2, 29.933259),
    Sketcher.Constraint("DistanceX", -1, 1, 12, 2, 19.671249),
    Sketcher.Constraint("DistanceY", -1, 1, 15, 2, 19.671249),
    Sketcher.Constraint("DistanceX", -1, 1, 16, 2, 12.269592),
    Sketcher.Constraint("DistanceY", -1, 1, 17, 2, 26.889359),
    Sketcher.Constraint("DistanceY", -1, 1, 18, 2, 28.420092),
    Sketcher.Constraint("DistanceY", -1, 1, 21, 2, 29.933259),
    Sketcher.Constraint("Distance", 1, 5.210767),
    Sketcher.Constraint("DistanceX", -1, 1, 4, 3, 0.000106),
    Sketcher.Constraint("DistanceY", 64, 3, -1, 1, 12.135255),
    Sketcher.Constraint("DistanceX", 67, 3, -1, 1, 14.265848),
    Sketcher.Constraint("DistanceY", -1, 1, 67, 3, 4.635255),
    Sketcher.Constraint("DistanceY", -1, 1, 12, 2, 15.428608),
])
pad1 = body.newObject("PartDesign::Pad", "Pad")
pad1.Profile = sketch1
pad1.Length = 25

doc.recompute()
